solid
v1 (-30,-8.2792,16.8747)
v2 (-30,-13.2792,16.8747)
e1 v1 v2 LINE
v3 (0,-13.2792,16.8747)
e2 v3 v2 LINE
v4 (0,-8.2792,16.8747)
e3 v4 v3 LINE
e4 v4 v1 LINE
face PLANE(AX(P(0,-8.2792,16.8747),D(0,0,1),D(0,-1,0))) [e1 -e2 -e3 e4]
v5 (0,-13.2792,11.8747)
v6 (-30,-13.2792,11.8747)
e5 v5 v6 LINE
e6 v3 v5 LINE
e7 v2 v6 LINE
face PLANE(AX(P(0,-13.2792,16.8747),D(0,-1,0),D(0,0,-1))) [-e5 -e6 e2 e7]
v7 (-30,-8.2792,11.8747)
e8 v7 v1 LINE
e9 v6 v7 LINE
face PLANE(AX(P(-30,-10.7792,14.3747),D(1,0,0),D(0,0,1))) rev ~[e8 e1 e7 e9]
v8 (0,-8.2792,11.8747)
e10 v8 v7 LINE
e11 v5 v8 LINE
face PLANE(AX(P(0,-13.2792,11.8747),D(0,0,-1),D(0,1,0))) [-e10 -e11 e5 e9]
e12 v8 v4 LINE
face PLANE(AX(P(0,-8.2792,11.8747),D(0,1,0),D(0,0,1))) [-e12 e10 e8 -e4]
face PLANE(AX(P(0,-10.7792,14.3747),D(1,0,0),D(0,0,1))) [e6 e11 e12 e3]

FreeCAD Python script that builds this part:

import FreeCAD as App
import Part
import Sketcher

V = App.Vector
Q = App.Units.Quantity

doc = App.newDocument("Part")
body = doc.addObject("PartDesign::Body", "Body")

sketch1 = doc.addObject("Sketcher::SketchObject", "Sketch")
body.addObject(sketch1)
sketch1.AttachmentSupport = (doc.YZ_Plane, [""])
sketch1.MapMode = "FlatFace"
sketch1.addGeometry([
    Part.LineSegment(V(-13.2792, 16.8747, 0), V(-13.2792, 11.8747, 0)),
    Part.LineSegment(V(-13.2792, 11.8747, 0), V(-8.2792, 11.8747, 0)),
    Part.LineSegment(V(-8.2792, 11.8747, 0), V(-8.2792, 16.8747, 0)),
    Part.LineSegment(V(-8.2792, 16.8747, 0), V(-13.2792, 16.8747, 0)),
], False)
sketch1.addConstraint([
    Sketcher.Constraint("Coincident", 0, 2, 1, 1),
    Sketcher.Constraint("Coincident", 1, 2, 2, 1),
    Sketcher.Constraint("Coincident", 2, 2, 3, 1),
    Sketcher.Constraint("Coincident", 3, 2, 0, 1),
    Sketcher.Constraint("Vertical", 0),
    Sketcher.Constraint("Horizontal", 1),
    Sketcher.Constraint("Vertical", 2),
    Sketcher.Constraint("Horizontal", 3),
    Sketcher.Constraint("Equal", 3, 0),
    Sketcher.Constraint("DistanceX", 1, 1, 1, 2, Q("5 mm")),
    Sketcher.Constraint("DistanceX", 0, 2, -1, 1, Q("13.2792 mm")),
    Sketcher.Constraint("DistanceY", -1, 1, 0, 2, Q("11.8747 mm")),
])
pad1 = doc.addObject("PartDesign::Pad", "Pad")
body.addObject(pad1)
pad1.Profile = sketch1
pad1.Length = 30
pad1.Reversed = True

doc.recompute()
